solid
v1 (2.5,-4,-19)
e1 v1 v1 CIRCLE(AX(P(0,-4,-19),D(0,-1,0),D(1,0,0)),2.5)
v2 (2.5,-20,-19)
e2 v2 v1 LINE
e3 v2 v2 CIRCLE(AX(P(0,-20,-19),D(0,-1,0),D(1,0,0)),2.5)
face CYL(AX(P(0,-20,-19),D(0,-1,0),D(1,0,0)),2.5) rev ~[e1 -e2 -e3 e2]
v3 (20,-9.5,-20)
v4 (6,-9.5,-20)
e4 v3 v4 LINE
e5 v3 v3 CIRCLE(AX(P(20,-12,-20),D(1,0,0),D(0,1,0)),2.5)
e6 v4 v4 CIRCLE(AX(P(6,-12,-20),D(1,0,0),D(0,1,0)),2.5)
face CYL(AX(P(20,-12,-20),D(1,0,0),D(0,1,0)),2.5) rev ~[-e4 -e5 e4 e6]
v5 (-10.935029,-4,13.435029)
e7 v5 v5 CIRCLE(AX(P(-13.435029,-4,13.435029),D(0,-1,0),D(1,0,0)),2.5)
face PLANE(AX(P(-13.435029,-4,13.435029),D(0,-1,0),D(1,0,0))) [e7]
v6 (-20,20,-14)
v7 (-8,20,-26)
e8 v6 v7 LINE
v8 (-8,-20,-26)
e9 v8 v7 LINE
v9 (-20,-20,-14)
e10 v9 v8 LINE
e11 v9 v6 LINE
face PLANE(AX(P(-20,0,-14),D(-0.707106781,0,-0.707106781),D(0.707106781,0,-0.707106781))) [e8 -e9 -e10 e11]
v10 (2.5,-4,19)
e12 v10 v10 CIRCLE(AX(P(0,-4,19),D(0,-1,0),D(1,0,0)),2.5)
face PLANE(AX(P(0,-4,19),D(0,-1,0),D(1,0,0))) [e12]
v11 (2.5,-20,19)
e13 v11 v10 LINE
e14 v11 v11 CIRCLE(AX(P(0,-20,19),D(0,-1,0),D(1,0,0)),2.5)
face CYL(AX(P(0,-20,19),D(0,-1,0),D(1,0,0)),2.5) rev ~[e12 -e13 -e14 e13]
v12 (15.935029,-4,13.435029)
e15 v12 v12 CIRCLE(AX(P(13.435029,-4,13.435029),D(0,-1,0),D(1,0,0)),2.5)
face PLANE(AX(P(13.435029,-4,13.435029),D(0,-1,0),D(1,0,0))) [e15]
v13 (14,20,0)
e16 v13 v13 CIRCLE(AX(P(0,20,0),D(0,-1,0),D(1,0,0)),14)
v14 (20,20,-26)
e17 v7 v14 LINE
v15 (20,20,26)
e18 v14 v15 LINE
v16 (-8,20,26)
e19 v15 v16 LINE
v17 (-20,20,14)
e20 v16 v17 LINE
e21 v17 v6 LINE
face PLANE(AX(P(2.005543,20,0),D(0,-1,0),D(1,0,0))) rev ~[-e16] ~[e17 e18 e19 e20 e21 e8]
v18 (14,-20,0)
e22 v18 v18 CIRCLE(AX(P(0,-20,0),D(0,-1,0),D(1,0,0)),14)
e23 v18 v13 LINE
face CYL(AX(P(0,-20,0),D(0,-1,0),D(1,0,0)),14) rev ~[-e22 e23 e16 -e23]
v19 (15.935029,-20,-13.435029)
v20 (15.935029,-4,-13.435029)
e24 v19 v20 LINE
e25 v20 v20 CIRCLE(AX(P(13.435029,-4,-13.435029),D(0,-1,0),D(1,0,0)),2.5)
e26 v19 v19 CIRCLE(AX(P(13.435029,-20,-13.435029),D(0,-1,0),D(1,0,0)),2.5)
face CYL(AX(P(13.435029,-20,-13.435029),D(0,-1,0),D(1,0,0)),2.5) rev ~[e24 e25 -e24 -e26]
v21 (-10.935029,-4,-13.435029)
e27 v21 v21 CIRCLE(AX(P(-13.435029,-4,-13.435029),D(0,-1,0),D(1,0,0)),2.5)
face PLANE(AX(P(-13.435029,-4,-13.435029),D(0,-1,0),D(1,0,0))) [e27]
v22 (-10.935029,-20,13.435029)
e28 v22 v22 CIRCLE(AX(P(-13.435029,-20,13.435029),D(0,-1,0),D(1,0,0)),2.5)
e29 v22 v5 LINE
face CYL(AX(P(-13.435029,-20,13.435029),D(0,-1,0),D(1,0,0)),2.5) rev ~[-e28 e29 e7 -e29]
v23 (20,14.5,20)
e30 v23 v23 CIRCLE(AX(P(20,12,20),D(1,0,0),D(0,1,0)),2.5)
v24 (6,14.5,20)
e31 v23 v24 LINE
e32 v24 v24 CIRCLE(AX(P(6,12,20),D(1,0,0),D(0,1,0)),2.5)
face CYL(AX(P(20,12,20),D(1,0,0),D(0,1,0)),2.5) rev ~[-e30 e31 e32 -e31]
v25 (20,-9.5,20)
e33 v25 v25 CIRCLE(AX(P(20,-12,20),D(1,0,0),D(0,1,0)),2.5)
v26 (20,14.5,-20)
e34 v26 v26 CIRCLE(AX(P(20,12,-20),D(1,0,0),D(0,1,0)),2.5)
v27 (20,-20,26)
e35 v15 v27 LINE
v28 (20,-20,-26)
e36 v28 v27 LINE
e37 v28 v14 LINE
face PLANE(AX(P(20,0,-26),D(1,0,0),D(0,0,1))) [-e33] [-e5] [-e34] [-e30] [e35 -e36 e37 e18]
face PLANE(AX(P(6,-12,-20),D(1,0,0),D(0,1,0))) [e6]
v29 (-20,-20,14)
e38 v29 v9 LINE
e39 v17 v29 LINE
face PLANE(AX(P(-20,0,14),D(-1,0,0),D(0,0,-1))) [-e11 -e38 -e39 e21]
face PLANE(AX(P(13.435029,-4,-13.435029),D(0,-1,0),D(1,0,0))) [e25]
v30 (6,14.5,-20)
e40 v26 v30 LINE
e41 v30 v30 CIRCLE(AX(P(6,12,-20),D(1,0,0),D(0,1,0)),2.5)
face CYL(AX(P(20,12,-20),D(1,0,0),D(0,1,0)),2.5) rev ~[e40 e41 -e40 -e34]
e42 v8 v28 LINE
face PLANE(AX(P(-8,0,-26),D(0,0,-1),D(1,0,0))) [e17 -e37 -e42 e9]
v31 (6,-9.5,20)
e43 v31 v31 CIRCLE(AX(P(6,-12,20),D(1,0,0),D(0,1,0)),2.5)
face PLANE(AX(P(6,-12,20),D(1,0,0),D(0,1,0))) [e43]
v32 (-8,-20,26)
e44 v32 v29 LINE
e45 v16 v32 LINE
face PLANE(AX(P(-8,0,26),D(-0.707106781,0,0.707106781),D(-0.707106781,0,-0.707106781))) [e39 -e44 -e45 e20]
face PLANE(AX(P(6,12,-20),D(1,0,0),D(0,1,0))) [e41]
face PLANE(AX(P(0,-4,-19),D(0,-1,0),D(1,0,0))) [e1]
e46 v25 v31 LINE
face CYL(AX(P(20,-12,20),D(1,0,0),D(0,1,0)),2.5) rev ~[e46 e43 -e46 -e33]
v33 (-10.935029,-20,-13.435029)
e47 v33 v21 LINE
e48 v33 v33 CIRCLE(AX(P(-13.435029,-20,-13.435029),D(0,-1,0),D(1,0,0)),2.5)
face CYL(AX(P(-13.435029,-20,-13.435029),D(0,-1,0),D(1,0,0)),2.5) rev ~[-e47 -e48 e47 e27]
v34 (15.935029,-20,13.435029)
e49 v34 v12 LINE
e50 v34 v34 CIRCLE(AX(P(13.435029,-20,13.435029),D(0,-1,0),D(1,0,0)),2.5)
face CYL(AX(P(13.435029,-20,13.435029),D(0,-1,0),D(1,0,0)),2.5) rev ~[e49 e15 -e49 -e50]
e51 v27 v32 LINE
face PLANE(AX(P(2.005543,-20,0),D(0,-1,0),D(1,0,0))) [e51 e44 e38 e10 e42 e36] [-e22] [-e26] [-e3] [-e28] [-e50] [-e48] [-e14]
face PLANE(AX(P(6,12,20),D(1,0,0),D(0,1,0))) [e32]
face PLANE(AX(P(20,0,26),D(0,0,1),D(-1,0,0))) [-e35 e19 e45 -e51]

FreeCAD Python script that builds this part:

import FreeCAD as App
import Part
import Sketcher

V = App.Vector

doc = App.newDocument("Part")
body = doc.addObject("PartDesign::Body", "Body")

# Sketch on XZ plane
sketch1 = body.newObject("Sketcher::SketchObject", "Sketch")
sketch1.AttachmentSupport = (doc.getObject("XZ_Plane"), [""])
sketch1.MapMode = "FlatFace"
sketch1.addGeometry([
    Part.LineSegment(V(20, -26, 0), V(20, 26, 0)),  # 0
    Part.LineSegment(V(20, 26, 0), V(-8, 26, 0)),  # 1
    Part.LineSegment(V(-8, 26, 0), V(-20, 14, 0)),  # 2
    Part.LineSegment(V(-20, 14, 0), V(-20, -14, 0)),  # 3
    Part.LineSegment(V(-20, -14, 0), V(-8, -26, 0)),  # 4
    Part.LineSegment(V(-8, -26, 0), V(20, -26, 0)),  # 5
], False)
sketch1.addConstraint([
    Sketcher.Constraint("Coincident", 0, 2, 1, 1),
    Sketcher.Constraint("Coincident", 1, 2, 2, 1),
    Sketcher.Constraint("Coincident", 2, 2, 3, 1),
    Sketcher.Constraint("Coincident", 3, 2, 4, 1),
    Sketcher.Constraint("Coincident", 4, 2, 5, 1),
    Sketcher.Constraint("Coincident", 5, 2, 0, 1),
    Sketcher.Constraint("Vertical", 0),
    Sketcher.Constraint("Horizontal", 1),
    Sketcher.Constraint("Vertical", 3),
    Sketcher.Constraint("Horizontal", 5),
    Sketcher.Constraint("Symmetric", 1, 2, 4, 2, -1),
    Sketcher.Constraint("Perpendicular", 2, 4),
    Sketcher.Constraint("Equal", 5, 3),
    Sketcher.Constraint("Equal", 2, 4),
    Sketcher.Constraint("DistanceX", 1, 2, 1, 1, 28.0),
    Sketcher.Constraint("DistanceY", 0, 1, 0, 2, 52.0),
    Sketcher.Constraint("DistanceX", -1, 1, 0, 2, 20.0),
])
pad1 = body.newObject("PartDesign::Pad", "Pad")
pad1.Profile = sketch1
pad1.Length = 40
pad1.Midplane = True

# Sketch on XZ plane
sketch2 = body.newObject("Sketcher::SketchObject", "Sketch001")
sketch2.AttachmentSupport = (doc.getObject("XZ_Plane"), [""])
sketch2.MapMode = "FlatFace"
sketch2.AttachmentOffset = App.Placement(V(0, 0, 20), App.Rotation())
sketch2.addGeometry(Part.Circle(V(0, 0, 0), V(0, 0, 1), 14), False)
sketch2.addConstraint([
    Sketcher.Constraint("Coincident", 0, 3, -1, 1),
    Sketcher.Constraint("Diameter", 0, 28.0),
])
pocket1 = body.newObject("PartDesign::Pocket", "Pocket")
pocket1.Profile = sketch2
pocket1.Length = 40

# Sketch on XZ plane
sketch3 = body.newObject("Sketcher::SketchObject", "Sketch002")
sketch3.AttachmentSupport = (doc.getObject("XZ_Plane"), [""])
sketch3.MapMode = "FlatFace"
sketch3.AttachmentOffset = App.Placement(V(0, 0, 20), App.Rotation())
sketch3.addGeometry([
    Part.Circle(V(-13.4, 13.4, 0), V(0, 0, 1), 2.5),  # 0
    Part.Circle(V(13.4, 13.4, 0), V(0, 0, 1), 2.5),  # 1
    Part.Circle(V(-13.4, -13.4, 0), V(0, 0, 1), 2.5),  # 2
    Part.Circle(V(13.4, -13.4, 0), V(0, 0, 1), 2.5),  # 3
    Part.Circle(V(0, 19, 0), V(0, 0, 1), 2.5),  # 4
    Part.Circle(V(0, -19, 0), V(0, 0, 1), 2.5),  # 5
], False)
sketch3.addConstraint([
    Sketcher.Constraint("Equal", 0, 1),
    Sketcher.Constraint("Equal", 1, 2),
    Sketcher.Constraint("Equal", 2, 3),
    Sketcher.Constraint("Equal", 3, 4),
    Sketcher.Constraint("Equal", 4, 5),
    Sketcher.Constraint("Symmetric", 1, 3, 2, 3, -1, 1),
    Sketcher.Constraint("Symmetric", 0, 3, 3, 3, -1, 1),
    Sketcher.Constraint("Symmetric", 4, 3, 5, 3, -1, 1),
    Sketcher.Constraint("Symmetric", 0, 3, 1, 3, -2),
    Sketcher.Constraint("PointOnObject", 4, 3, -2),
    Sketcher.Constraint("Diameter", 0, 5.0),
    Sketcher.Constraint("DistanceY", -1, 1, 4, 3, 19.0),
    Sketcher.Constraint("DistanceX", 0, 3, -1, 1, 13.435029),
    Sketcher.Constraint("DistanceY", -1, 1, 0, 3, 13.435029),
])
pocket2 = body.newObject("PartDesign::Pocket", "Pocket001")
pocket2.Profile = sketch3
pocket2.Length = 16

# Sketch on YZ plane
sketch4 = body.newObject("Sketcher::SketchObject", "Sketch003")
sketch4.AttachmentSupport = (doc.getObject("YZ_Plane"), [""])
sketch4.MapMode = "FlatFace"
sketch4.AttachmentOffset = App.Placement(V(0, 0, 20), App.Rotation())
sketch4.addGeometry([
    Part.Circle(V(-12, 20, 0), V(0, 0, 1), 2.5),
    Part.Circle(V(12, 20, 0), V(0, 0, 1), 2.5),
    Part.Circle(V(12, -20, 0), V(0, 0, 1), 2.5),
    Part.Circle(V(-12, -20, 0), V(0, 0, 1), 2.5),
], False)
sketch4.addConstraint([
    Sketcher.Constraint("Equal", 0, 1),
    Sketcher.Constraint("Equal", 1, 2),
    Sketcher.Constraint("Equal", 2, 3),
    Sketcher.Constraint("Symmetric", 0, 3, 2, 3, -1, 1),
    Sketcher.Constraint("Symmetric", 1, 3, 3, 3, -1, 1),
    Sketcher.Constraint("Symmetric", 0, 3, 1, 3, -2),
    Sketcher.Constraint("Diameter", 0, 5.0),
    Sketcher.Constraint("DistanceX", 0, 3, -1, 1, 12.0),
    Sketcher.Constraint("DistanceY", -1, 1, 0, 3, 20.0),
])
pocket3 = body.newObject("PartDesign::Pocket", "Pocket002")
pocket3.Profile = sketch4
pocket3.Length = 14

doc.recompute()
